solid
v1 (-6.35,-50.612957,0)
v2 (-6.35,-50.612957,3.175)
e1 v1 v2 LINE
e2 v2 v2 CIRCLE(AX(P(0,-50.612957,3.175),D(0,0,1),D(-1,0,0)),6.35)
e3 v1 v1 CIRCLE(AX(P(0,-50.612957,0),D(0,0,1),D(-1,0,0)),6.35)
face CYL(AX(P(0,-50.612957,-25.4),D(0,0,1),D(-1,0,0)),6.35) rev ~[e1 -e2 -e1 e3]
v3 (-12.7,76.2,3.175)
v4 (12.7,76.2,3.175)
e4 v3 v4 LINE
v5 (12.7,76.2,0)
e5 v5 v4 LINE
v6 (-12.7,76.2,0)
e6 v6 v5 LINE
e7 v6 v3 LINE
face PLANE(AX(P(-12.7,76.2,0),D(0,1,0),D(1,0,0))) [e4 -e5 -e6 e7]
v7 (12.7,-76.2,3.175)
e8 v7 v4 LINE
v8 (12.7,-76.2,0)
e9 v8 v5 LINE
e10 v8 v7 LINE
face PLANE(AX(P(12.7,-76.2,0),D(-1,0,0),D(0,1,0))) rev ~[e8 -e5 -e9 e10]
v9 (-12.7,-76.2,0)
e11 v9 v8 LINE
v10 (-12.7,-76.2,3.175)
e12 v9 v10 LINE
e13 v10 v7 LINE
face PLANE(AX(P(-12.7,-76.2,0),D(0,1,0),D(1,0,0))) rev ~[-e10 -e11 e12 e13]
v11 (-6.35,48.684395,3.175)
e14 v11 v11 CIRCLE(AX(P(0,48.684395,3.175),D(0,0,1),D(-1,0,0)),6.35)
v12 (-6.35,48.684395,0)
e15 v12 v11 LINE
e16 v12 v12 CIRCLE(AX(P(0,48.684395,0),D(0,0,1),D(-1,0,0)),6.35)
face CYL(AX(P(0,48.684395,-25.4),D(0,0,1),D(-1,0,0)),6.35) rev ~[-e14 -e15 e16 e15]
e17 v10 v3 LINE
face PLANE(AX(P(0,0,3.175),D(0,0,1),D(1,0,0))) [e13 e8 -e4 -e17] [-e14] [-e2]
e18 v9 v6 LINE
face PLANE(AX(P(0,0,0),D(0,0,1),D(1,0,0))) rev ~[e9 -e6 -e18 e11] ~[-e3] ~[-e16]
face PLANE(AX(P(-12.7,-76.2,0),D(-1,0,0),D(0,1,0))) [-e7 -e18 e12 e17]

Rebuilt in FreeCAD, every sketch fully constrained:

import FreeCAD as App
import Part
import Sketcher

V = App.Vector
Q = App.Units.Quantity

doc = App.newDocument("Part")
body = doc.addObject("PartDesign::Body", "Body")

# Sketch on XY plane
sketch1 = doc.addObject("Sketcher::SketchObject", "Sketch")
body.addObject(sketch1)
sketch1.AttachmentSupport = (doc.XY_Plane, [""])
sketch1.MapMode = "FlatFace"
sketch1.addGeometry([
    Part.LineSegment(V(-13, 76, 0), V(-13, -76, 0)),
    Part.LineSegment(V(-13, -76, 0), V(13, -76, 0)),
    Part.LineSegment(V(13, -76, 0), V(13, 76, 0)),
    Part.LineSegment(V(13, 76, 0), V(-13, 76, 0)),
], False)
sketch1.addConstraint([
    Sketcher.Constraint("Coincident", 0, 2, 1, 1),
    Sketcher.Constraint("Coincident", 1, 2, 2, 1),
    Sketcher.Constraint("Coincident", 2, 2, 3, 1),
    Sketcher.Constraint("Coincident", 3, 2, 0, 1),
    Sketcher.Constraint("Vertical", 0),
    Sketcher.Constraint("Horizontal", 1),
    Sketcher.Constraint("Vertical", 2),
    Sketcher.Constraint("Horizontal", 3),
    Sketcher.Constraint("Symmetric", 0, 2, 2, 2, -1, 1),
    Sketcher.Constraint("DistanceX", 1, 1, 1, 2, Q("1 in")),
    Sketcher.Constraint("DistanceY", 0, 2, 0, 1, Q("6 in")),
])
pad1 = doc.addObject("PartDesign::Pad", "Pad")
body.addObject(pad1)
pad1.Profile = sketch1
pad1.Length = Q("0.125 in")

# Sketch on XY plane
sketch2 = doc.addObject("Sketcher::SketchObject", "Sketch001")
body.addObject(sketch2)
sketch2.AttachmentSupport = (doc.XY_Plane, [""])
sketch2.MapMode = "FlatFace"
sketch2.addGeometry(Part.Circle(V(0, 49, 0), V(0, 0, 1), 6), False)
sketch2.addConstraint([
    Sketcher.Constraint("PointOnObject", 0, 3, -2),
    Sketcher.Constraint("Diameter", 0, Q("0.5 in")),
    Sketcher.Constraint("DistanceY", -1, 1, 0, 3, Q("48.684395 mm")),
])
doc.recompute()
hole = doc.addObject("PartDesign::Hole", "Hole")
body.addObject(hole)
hole.Profile = sketch2
hole.ThreadType = "None"
hole.Diameter = Q("0.5 in")
hole.DepthType = "Dimension"
hole.Depth = Q("1 in")
hole.DrillPoint = "Angled"
hole.DrillPointAngle = 118
hole.Reversed = True

# Sketch on XY plane
sketch3 = doc.addObject("Sketcher::SketchObject", "Sketch002")
body.addObject(sketch3)
sketch3.AttachmentSupport = (doc.XY_Plane, [""])
sketch3.MapMode = "FlatFace"
sketch3.addGeometry(Part.Circle(V(0, -51, 0), V(0, 0, 1), 6), False)
sketch3.addConstraint([
    Sketcher.Constraint("PointOnObject", 0, 3, -2),
    Sketcher.Constraint("Diameter", 0, Q("0.5 in")),
    Sketcher.Constraint("DistanceY", 0, 3, -1, 1, Q("50.612957 mm")),
])
doc.recompute()
hole2 = doc.addObject("PartDesign::Hole", "Hole001")
body.addObject(hole2)
hole2.Profile = sketch3
hole2.ThreadType = "None"
hole2.Diameter = Q("0.5 in")
hole2.DepthType = "Dimension"
hole2.Depth = Q("1 in")
hole2.DrillPoint = "Angled"
hole2.DrillPointAngle = 118
hole2.Reversed = True

doc.recompute()
